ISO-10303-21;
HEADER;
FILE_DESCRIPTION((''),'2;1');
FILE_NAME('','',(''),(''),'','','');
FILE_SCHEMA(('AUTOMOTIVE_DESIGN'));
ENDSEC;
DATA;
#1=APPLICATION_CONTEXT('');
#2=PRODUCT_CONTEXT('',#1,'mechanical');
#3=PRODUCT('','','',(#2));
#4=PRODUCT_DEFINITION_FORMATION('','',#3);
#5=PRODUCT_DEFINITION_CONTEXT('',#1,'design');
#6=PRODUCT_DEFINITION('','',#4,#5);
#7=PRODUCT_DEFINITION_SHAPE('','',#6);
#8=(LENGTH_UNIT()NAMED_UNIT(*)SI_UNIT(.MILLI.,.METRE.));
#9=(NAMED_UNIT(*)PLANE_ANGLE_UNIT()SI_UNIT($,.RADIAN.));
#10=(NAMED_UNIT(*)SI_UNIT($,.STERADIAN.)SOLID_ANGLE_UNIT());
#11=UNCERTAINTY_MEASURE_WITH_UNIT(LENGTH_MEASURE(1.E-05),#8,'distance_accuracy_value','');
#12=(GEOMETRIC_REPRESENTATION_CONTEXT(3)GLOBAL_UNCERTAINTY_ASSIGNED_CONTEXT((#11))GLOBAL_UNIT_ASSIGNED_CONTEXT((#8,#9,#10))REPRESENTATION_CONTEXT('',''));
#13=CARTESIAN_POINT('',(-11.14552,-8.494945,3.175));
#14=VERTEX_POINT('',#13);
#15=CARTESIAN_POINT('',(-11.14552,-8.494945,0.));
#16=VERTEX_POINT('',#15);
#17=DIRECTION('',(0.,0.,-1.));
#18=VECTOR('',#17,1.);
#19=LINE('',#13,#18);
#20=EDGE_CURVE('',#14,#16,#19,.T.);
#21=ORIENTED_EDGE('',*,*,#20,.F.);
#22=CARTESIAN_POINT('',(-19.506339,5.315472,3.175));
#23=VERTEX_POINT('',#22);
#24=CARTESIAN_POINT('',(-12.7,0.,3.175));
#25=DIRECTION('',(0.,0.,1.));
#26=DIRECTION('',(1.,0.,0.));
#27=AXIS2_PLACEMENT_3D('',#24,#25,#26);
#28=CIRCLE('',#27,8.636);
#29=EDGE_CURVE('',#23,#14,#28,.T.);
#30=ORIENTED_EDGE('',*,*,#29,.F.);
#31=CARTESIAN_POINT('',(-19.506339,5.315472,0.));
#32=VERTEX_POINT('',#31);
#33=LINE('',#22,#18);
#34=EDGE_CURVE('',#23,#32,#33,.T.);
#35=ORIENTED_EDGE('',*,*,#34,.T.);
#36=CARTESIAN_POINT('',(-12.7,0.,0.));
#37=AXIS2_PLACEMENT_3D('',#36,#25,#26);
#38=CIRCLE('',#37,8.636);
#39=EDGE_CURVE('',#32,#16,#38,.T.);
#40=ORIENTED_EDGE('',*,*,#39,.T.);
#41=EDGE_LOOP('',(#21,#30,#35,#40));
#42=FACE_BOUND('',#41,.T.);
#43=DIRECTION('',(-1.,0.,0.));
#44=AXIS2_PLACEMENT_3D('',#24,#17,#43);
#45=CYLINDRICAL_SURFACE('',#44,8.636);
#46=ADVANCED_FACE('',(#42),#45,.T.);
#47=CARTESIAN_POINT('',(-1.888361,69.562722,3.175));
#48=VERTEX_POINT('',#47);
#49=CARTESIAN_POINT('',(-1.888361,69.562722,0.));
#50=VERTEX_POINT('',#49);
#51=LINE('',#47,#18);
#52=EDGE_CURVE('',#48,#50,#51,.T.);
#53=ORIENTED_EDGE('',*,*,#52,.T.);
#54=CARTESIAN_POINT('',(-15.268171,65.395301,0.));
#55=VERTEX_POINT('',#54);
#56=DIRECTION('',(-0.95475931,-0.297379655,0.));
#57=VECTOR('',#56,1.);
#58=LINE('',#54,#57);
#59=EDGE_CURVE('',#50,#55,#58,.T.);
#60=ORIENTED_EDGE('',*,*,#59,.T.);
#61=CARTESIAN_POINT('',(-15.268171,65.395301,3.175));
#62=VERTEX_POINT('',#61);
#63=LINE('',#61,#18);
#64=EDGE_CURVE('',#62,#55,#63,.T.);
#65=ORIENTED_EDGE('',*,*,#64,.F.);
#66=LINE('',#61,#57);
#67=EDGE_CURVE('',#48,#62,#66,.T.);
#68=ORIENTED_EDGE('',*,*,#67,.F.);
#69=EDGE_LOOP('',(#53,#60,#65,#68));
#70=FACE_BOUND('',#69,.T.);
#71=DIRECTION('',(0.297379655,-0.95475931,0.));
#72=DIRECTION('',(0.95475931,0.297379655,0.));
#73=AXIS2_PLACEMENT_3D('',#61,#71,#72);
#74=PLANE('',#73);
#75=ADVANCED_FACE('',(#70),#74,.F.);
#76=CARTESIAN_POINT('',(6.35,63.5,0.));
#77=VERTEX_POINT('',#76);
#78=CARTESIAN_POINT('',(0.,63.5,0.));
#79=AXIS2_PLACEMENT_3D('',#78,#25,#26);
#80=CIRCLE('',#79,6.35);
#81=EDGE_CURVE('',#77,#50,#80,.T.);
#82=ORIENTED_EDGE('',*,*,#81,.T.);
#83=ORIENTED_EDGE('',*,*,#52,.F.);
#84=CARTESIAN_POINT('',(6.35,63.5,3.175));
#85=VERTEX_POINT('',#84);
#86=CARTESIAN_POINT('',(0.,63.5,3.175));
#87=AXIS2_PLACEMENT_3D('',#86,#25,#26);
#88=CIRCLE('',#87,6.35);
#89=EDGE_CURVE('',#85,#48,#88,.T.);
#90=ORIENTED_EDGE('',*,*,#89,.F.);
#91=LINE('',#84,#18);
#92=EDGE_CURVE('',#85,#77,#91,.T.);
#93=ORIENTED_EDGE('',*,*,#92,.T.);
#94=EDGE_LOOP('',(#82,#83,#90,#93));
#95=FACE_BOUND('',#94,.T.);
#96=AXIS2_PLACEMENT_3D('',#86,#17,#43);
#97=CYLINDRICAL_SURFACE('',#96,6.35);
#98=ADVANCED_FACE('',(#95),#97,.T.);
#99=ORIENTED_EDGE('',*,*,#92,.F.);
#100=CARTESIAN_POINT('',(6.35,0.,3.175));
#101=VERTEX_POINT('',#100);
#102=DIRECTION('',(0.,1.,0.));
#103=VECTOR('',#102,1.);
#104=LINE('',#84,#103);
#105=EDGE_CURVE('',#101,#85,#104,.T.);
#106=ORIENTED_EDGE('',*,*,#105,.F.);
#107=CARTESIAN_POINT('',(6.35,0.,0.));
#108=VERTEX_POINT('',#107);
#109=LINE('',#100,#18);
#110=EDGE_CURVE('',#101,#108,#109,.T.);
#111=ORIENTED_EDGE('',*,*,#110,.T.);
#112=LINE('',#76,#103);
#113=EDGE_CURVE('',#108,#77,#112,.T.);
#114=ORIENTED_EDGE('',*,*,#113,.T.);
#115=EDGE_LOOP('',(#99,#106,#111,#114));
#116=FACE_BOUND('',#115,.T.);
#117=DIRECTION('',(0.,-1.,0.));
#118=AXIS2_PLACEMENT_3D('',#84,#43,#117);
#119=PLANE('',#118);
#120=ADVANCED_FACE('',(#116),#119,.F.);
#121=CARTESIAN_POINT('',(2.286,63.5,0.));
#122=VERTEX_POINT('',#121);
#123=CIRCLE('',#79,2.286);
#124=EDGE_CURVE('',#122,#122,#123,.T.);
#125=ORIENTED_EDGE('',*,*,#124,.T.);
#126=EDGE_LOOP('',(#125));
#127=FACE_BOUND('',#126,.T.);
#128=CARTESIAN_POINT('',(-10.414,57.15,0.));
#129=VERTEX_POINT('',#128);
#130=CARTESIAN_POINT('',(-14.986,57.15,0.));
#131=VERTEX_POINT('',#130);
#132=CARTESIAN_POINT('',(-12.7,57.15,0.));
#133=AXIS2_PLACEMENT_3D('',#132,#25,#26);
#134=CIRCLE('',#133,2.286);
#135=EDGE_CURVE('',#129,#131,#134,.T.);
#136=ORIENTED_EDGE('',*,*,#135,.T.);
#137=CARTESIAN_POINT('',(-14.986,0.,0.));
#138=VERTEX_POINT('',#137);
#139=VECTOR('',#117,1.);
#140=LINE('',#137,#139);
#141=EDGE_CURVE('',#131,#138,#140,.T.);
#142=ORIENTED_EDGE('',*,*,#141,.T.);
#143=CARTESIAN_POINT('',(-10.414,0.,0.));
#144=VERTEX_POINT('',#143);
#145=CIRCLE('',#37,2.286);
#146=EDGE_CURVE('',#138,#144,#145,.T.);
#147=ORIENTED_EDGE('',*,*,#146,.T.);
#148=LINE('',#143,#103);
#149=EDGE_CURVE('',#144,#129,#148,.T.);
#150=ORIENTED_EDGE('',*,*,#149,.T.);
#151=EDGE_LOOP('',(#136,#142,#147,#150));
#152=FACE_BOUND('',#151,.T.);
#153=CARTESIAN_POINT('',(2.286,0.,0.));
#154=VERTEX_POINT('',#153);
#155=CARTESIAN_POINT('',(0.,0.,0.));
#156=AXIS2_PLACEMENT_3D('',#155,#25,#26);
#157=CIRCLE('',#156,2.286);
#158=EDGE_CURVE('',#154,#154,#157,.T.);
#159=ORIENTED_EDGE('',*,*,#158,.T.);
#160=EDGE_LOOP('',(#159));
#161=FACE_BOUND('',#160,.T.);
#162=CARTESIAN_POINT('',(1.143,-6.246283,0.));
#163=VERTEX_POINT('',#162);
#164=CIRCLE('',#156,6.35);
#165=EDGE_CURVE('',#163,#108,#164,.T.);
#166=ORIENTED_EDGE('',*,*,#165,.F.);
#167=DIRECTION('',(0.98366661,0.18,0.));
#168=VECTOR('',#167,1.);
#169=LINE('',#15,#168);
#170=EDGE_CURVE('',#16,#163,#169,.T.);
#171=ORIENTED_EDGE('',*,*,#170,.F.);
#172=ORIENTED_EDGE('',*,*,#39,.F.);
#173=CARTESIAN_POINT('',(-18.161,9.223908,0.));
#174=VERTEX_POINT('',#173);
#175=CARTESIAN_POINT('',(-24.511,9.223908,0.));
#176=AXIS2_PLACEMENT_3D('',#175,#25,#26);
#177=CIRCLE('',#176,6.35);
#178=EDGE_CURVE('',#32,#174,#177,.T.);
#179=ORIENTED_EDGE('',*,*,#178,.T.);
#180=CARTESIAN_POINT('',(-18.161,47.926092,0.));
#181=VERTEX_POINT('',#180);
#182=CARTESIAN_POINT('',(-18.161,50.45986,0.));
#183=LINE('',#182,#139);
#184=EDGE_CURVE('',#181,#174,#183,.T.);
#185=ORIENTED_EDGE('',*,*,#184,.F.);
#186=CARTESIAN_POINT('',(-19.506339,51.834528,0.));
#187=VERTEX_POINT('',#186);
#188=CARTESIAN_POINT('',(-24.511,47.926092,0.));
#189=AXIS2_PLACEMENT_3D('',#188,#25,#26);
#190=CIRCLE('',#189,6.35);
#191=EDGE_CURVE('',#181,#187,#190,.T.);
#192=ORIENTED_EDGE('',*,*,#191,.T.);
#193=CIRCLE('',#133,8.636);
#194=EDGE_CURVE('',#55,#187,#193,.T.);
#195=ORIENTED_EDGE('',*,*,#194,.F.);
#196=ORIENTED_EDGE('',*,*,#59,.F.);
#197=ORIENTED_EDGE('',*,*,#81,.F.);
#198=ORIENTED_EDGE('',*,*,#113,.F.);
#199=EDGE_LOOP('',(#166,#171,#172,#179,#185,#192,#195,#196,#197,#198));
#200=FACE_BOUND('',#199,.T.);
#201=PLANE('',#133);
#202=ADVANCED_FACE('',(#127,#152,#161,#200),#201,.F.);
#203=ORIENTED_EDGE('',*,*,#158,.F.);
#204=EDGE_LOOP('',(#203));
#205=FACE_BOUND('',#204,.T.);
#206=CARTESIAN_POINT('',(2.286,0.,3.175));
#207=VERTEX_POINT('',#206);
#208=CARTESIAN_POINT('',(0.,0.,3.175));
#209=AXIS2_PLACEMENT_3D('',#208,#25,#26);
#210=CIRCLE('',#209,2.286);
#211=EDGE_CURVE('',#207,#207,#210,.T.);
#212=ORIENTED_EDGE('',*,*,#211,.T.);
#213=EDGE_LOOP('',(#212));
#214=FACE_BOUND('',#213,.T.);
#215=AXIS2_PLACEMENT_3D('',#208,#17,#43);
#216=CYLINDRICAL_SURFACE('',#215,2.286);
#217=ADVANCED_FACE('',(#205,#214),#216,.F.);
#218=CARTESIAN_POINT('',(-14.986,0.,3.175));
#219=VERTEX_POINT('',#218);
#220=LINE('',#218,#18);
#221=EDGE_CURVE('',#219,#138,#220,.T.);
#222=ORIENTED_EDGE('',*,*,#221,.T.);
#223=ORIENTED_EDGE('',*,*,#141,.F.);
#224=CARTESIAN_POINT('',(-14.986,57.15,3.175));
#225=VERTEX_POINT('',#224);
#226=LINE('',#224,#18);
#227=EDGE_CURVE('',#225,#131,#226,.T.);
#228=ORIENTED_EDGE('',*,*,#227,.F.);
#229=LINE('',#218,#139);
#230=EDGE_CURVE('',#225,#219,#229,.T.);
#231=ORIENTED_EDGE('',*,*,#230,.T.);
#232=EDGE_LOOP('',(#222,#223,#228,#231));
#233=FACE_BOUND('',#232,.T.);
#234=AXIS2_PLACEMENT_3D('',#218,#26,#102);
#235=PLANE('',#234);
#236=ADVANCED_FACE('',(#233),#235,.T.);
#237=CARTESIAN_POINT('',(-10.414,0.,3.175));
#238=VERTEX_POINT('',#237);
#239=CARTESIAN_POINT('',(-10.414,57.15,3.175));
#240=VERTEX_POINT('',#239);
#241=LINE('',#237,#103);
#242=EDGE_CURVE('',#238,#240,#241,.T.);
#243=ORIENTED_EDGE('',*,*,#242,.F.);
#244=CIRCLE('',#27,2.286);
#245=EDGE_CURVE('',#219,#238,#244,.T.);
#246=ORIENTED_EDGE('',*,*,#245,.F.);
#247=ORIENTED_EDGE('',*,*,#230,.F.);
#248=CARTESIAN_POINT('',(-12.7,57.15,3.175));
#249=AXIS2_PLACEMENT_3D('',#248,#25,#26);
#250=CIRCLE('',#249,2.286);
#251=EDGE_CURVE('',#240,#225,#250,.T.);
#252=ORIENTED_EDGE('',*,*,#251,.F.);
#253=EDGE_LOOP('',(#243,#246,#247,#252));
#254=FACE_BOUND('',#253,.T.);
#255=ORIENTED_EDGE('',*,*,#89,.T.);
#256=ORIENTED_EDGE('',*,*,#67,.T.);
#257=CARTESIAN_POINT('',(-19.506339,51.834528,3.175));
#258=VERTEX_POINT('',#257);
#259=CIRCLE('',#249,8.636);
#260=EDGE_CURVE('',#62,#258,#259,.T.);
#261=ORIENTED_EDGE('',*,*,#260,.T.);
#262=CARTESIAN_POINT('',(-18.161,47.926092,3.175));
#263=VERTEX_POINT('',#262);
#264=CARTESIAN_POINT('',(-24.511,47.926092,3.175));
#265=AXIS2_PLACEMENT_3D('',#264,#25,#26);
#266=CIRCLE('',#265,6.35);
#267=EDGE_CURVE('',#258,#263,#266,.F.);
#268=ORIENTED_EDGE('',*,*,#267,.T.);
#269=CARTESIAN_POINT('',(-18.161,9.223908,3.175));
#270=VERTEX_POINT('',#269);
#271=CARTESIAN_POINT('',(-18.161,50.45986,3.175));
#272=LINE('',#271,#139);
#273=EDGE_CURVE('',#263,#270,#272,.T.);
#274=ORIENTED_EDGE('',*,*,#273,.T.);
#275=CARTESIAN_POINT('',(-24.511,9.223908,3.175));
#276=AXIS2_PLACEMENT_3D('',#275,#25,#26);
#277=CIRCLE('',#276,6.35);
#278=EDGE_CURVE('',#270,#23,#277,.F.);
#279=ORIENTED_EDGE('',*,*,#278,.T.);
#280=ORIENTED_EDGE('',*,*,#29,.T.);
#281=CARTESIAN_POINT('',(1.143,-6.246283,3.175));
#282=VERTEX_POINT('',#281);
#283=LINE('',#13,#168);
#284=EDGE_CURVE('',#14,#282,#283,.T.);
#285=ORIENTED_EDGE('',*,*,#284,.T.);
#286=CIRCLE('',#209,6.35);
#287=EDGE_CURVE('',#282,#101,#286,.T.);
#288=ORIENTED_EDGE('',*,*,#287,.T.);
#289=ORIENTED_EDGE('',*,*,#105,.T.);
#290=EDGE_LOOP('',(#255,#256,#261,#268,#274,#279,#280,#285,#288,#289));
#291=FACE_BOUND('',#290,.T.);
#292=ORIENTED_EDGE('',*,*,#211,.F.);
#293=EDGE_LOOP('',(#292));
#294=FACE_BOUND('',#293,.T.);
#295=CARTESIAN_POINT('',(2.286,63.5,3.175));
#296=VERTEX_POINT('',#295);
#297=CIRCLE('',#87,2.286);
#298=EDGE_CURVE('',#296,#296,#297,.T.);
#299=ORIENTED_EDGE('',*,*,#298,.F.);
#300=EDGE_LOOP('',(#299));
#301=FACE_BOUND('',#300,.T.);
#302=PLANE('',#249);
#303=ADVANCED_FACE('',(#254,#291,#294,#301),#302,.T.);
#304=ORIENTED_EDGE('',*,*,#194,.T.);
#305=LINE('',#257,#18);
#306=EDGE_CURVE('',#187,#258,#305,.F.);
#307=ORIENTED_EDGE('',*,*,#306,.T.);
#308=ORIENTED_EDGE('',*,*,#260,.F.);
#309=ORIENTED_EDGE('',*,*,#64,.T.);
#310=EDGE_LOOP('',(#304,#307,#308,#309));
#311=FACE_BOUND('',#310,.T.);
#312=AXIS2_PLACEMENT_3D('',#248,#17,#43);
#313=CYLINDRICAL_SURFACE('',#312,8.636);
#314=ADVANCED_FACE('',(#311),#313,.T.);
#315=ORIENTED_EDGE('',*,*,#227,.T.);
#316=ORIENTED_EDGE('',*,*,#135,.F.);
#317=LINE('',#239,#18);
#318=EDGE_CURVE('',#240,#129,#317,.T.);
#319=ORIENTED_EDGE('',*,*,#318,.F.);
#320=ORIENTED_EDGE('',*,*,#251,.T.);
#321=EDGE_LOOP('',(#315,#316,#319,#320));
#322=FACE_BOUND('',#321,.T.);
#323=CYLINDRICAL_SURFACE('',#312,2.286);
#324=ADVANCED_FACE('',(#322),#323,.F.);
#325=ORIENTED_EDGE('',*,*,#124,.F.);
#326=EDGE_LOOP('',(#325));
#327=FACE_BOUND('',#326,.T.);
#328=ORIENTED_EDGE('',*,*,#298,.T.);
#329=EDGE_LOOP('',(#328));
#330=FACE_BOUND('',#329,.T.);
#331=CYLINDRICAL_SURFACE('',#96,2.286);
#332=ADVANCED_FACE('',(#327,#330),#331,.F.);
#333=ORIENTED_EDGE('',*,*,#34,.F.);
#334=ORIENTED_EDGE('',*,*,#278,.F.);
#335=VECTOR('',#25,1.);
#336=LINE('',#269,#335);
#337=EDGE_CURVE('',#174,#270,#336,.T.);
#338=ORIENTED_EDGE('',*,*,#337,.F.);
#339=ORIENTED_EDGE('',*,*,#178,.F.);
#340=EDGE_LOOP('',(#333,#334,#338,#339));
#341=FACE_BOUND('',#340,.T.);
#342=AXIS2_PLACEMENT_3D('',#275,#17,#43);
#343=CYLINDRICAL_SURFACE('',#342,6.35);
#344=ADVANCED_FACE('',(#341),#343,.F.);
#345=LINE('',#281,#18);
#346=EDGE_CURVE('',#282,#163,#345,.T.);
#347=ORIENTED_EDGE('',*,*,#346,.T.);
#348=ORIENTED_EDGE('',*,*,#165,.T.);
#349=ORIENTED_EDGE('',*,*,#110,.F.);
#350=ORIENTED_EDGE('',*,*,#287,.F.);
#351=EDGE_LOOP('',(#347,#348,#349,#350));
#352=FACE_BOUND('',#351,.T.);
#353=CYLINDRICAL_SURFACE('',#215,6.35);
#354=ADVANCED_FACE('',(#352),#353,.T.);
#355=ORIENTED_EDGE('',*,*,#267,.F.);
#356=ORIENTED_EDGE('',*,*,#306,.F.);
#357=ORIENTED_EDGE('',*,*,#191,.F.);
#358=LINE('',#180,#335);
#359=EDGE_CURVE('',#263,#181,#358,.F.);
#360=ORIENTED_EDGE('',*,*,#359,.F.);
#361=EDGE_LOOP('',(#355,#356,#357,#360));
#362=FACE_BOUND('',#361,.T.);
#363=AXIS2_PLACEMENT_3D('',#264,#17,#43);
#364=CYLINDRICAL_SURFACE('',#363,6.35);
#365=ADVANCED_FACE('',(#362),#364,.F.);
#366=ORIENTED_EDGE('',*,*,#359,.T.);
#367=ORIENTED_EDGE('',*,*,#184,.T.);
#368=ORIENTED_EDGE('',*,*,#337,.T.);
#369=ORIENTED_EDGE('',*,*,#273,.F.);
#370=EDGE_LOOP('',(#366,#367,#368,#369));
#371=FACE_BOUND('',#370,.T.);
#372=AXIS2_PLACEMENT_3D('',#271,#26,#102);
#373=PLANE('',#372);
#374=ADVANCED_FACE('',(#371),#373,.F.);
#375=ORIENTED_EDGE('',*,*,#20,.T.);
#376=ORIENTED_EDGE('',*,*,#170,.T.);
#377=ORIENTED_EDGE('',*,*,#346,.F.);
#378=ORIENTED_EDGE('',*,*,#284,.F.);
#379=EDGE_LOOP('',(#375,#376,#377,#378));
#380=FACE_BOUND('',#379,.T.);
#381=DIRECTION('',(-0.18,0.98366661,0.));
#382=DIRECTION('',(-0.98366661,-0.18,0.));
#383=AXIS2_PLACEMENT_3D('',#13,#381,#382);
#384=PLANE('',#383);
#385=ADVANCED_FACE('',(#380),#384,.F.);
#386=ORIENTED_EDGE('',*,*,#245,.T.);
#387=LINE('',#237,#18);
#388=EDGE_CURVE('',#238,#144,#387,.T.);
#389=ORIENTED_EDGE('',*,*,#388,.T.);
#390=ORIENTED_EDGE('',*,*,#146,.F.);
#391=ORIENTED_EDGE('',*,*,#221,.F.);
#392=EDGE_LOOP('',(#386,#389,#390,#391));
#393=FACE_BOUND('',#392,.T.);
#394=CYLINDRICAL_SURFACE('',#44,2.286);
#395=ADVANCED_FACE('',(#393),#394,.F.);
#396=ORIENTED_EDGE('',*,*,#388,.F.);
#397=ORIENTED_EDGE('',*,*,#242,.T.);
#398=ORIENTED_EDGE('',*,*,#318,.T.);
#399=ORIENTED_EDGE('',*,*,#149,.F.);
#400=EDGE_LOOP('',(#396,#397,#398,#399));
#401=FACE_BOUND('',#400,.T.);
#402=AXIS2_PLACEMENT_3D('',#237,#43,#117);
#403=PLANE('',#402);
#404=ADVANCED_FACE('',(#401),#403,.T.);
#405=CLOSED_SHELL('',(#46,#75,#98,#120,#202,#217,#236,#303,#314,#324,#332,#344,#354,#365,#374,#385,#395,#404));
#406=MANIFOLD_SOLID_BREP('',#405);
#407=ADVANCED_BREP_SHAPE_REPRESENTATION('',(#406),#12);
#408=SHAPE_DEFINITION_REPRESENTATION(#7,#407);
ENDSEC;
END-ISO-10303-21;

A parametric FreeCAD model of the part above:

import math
import FreeCAD as App
import Part
import Sketcher
from FreeCAD import Vector
Q = App.Units.Quantity


def edges_at(feature, points):
    """Names of the edges that pass closest to the given points."""
    edges = feature.Shape.Edges
    near = lambda p: min(range(len(edges)), key=lambda i: edges[i].distToShape(Part.Vertex(*p))[0])
    return sorted({f"Edge{near(p) + 1}" for p in points})

doc = App.newDocument("Part")
body = doc.addObject("PartDesign::Body", "Body")

# Sketch on XY plane
sketch1 = doc.addObject("Sketcher::SketchObject", "Sketch")
body.addObject(sketch1)
sketch1.AttachmentSupport = (doc.XY_Plane, [""])
sketch1.MapMode = "FlatFace"
sketch1.addGeometry([
    Part.LineSegment(Vector(-11.1, -8.5, 0), Vector(1.1, -6.2, 0)),  # 0
    Part.ArcOfCircle(Part.Circle(Vector(0, 0, 0), Vector(0, 0, 1), 6.3), math.radians(-80), math.radians(0)),  # 1
    Part.LineSegment(Vector(6.3, 0, 0), Vector(6.3, 63.5, 0)),  # 2
    Part.ArcOfCircle(Part.Circle(Vector(0, 63.5, 0), Vector(0, 0, 1), 6.3), math.radians(0), math.radians(107)),  # 3
    Part.LineSegment(Vector(-1.9, 69.6, 0), Vector(-15.3, 65.4, 0)),  # 4
    Part.ArcOfCircle(Part.Circle(Vector(-12.7, 57.1, 0), Vector(0, 0, 1), 8.6), math.radians(107), math.radians(231)),  # 5
    Part.LineSegment(Vector(-18.2, 50.5, 0), Vector(-18.2, 6.7, 0)),  # 6
    Part.ArcOfCircle(Part.Circle(Vector(-12.7, 0, 0), Vector(0, 0, 1), 8.6), math.radians(129), math.radians(280)),  # 7
    Part.ArcOfCircle(Part.Circle(Vector(-12.7, 0, 0), Vector(0, 0, 1), 2.3), math.radians(180), math.radians(360)),  # 8
    Part.LineSegment(Vector(-15, 0, 0), Vector(-15, 57.1, 0)),  # 9
    Part.ArcOfCircle(Part.Circle(Vector(-12.7, 57.1, 0), Vector(0, 0, 1), 2.3), math.radians(0), math.radians(180)),  # 10
    Part.LineSegment(Vector(-10.4, 57.1, 0), Vector(-10.4, 0, 0)),  # 11
    Part.Circle(Vector(0, 0, 0), Vector(0, 0, 1), 2.3),  # 12
    Part.Circle(Vector(0, 63.5, 0), Vector(0, 0, 1), 2.3),  # 13
], False)
sketch1.addConstraint([
    Sketcher.Constraint("Tangent", 0, 2, 1, 1),
    Sketcher.Constraint("Tangent", 1, 2, 2, 1),
    Sketcher.Constraint("Tangent", 2, 2, 3, 1),
    Sketcher.Constraint("Tangent", 3, 2, 4, 1),
    Sketcher.Constraint("Tangent", 4, 2, 5, 1),
    Sketcher.Constraint("Coincident", 5, 2, 6, 1),
    Sketcher.Constraint("Coincident", 6, 2, 7, 1),
    Sketcher.Constraint("Tangent", 7, 2, 0, 1),
    Sketcher.Constraint("Tangent", 8, 1, 9, 1),
    Sketcher.Constraint("Tangent", 9, 2, 10, 2),
    Sketcher.Constraint("Tangent", 10, 1, 11, 1),
    Sketcher.Constraint("Tangent", 11, 2, 8, 2),
    Sketcher.Constraint("Vertical", 2),
    Sketcher.Constraint("Vertical", 6),
    Sketcher.Constraint("Vertical", 9),
    Sketcher.Constraint("Vertical", 11),
    Sketcher.Constraint("Coincident", 1, 3, -1, 1),
    Sketcher.Constraint("Coincident", 12, 3, -1, 1),
    Sketcher.Constraint("Coincident", 8, 3, 7, 3),
    Sketcher.Constraint("Coincident", 10, 3, 5, 3),
    Sketcher.Constraint("Coincident", 13, 3, 3, 3),
    Sketcher.Constraint("Equal", 1, 3),
    Sketcher.Constraint("Equal", 5, 7),
    Sketcher.Constraint("Equal", 10, 12),
    Sketcher.Constraint("Equal", 12, 13),
    Sketcher.Constraint("PointOnObject", 7, 3, -1),
    Sketcher.Constraint("Diameter", 12, Q("0.18 in")),
    Sketcher.Constraint("Radius", 1, Q("0.25 in")),
    Sketcher.Constraint("Radius", 5, Q("0.34 in")),
    Sketcher.Constraint("DistanceY", 2, 1, 2, 2, Q("2.5 in")),
    Sketcher.Constraint("DistanceY", 9, 1, 9, 2, Q("2.25 in")),
    Sketcher.Constraint("DistanceX", 5, 3, -1, 1, Q("0.5 in")),
    Sketcher.Constraint("DistanceX", 6, 2, 0, 2, Q("0.76 in")),
])
pad1 = doc.addObject("PartDesign::Pad", "Pad")
body.addObject(pad1)
pad1.Profile = sketch1
pad1.Length = Q("0.125 in")
doc.recompute()

fillet = doc.addObject("PartDesign::Fillet", "Fillet")
body.addObject(fillet)
fillet.Base = (pad1, edges_at(pad1, [(-18.161, 6.69, 1.587), (-18.161, 50.46, 1.587)]))
fillet.Radius = Q("0.25 in")

doc.recompute()
